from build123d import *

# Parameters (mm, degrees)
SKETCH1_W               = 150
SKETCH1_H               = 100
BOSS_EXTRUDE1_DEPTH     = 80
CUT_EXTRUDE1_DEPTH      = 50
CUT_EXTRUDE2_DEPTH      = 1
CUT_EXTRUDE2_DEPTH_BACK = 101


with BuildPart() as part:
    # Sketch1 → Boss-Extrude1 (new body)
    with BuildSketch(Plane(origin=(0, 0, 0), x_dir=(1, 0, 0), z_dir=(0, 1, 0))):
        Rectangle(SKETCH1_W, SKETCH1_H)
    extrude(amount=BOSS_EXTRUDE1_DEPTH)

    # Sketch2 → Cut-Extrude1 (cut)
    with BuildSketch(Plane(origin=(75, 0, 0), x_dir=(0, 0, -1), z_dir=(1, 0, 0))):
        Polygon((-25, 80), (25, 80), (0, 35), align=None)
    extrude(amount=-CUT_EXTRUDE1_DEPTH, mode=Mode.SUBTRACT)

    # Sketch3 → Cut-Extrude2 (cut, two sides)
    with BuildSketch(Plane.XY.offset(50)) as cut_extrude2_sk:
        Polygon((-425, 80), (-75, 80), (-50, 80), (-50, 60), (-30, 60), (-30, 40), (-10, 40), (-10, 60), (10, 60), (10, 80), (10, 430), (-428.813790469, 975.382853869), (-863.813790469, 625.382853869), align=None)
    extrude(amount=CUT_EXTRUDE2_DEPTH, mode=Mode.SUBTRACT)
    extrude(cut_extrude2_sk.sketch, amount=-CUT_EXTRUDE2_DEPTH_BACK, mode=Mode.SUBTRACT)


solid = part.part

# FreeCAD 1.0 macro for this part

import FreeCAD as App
import Part
import Sketcher
Q = App.Units.Quantity

doc = App.newDocument("Part")
body = doc.addObject("PartDesign::Body", "Body")

# Sketch on XZ plane
sketch1 = doc.addObject("Sketcher::SketchObject", "Sketch")
body.addObject(sketch1)
sketch1.AttachmentSupport = (doc.XZ_Plane, [""])
sketch1.MapMode = "FlatFace"
sketch1.addGeometry(Part.LineSegment(App.Vector(-75, -50, 0), App.Vector(-75, 50, 0)), False)
sketch1.addGeometry(Part.LineSegment(App.Vector(-75, 50, 0), App.Vector(75, 50, 0)), False)
sketch1.addGeometry(Part.LineSegment(App.Vector(75, 50, 0), App.Vector(75, -50, 0)), False)
sketch1.addGeometry(Part.LineSegment(App.Vector(75, -50, 0), App.Vector(-75, -50, 0)), False)
sketch1.addConstraint(Sketcher.Constraint("Coincident", 0, 2, 1, 1))
sketch1.addConstraint(Sketcher.Constraint("Coincident", 1, 2, 2, 1))
sketch1.addConstraint(Sketcher.Constraint("Coincident", 2, 2, 3, 1))
sketch1.addConstraint(Sketcher.Constraint("Coincident", 3, 2, 0, 1))
sketch1.addConstraint(Sketcher.Constraint("Vertical", 0))
sketch1.addConstraint(Sketcher.Constraint("Horizontal", 1))
sketch1.addConstraint(Sketcher.Constraint("Vertical", 2))
sketch1.addConstraint(Sketcher.Constraint("Horizontal", 3))
sketch1.addConstraint(Sketcher.Constraint("Symmetric", 0, 2, 2, 2, -1, 1))
sketch1.addConstraint(Sketcher.Constraint("DistanceX", 1, 1, 1, 2, Q("150 mm")))
sketch1.addConstraint(Sketcher.Constraint("DistanceY", 0, 1, 0, 2, Q("100 mm")))
pad1 = doc.addObject("PartDesign::Pad", "Pad")
body.addObject(pad1)
pad1.Profile = sketch1
pad1.Length = 80
pad1.Reversed = True

# Sketch on YZ plane
sketch2 = doc.addObject("Sketcher::SketchObject", "Sketch001")
body.addObject(sketch2)
sketch2.AttachmentSupport = (doc.YZ_Plane, [""])
sketch2.MapMode = "FlatFace"
sketch2.AttachmentOffset = App.Placement(App.Vector(0, 0, 75), App.Rotation())
sketch2.addGeometry(Part.LineSegment(App.Vector(80, -25, 0), App.Vector(80, 25, 0)), False)
sketch2.addGeometry(Part.LineSegment(App.Vector(80, 25, 0), App.Vector(35, 0, 0)), False)
sketch2.addGeometry(Part.LineSegment(App.Vector(35, 0, 0), App.Vector(80, -25, 0)), False)
sketch2.addConstraint(Sketcher.Constraint("Coincident", 0, 2, 1, 1))
sketch2.addConstraint(Sketcher.Constraint("Coincident", 1, 2, 2, 1))
sketch2.addConstraint(Sketcher.Constraint("Coincident", 2, 2, 0, 1))
sketch2.addConstraint(Sketcher.Constraint("Vertical", 0))
sketch2.addConstraint(Sketcher.Constraint("PointOnObject", 1, 2, -1))
sketch2.addConstraint(Sketcher.Constraint("Equal", 1, 2))
sketch2.addConstraint(Sketcher.Constraint("DistanceY", 0, 1, 0, 2, Q("50 mm")))
sketch2.addConstraint(Sketcher.Constraint("DistanceX", -1, 1, 0, 2, Q("80 mm")))
sketch2.addConstraint(Sketcher.Constraint("DistanceX", -1, 1, 1, 2, Q("35 mm")))
pocket1 = doc.addObject("PartDesign::Pocket", "Pocket")
body.addObject(pocket1)
pocket1.Profile = sketch2
pocket1.Length = 50

# Sketch on XY plane
sketch3 = doc.addObject("Sketcher::SketchObject", "Sketch002")
body.addObject(sketch3)
sketch3.AttachmentSupport = (doc.XY_Plane, [""])
sketch3.MapMode = "FlatFace"
sketch3.AttachmentOffset = App.Placement(App.Vector(0, 0, 50), App.Rotation())
sketch3.addGeometry(Part.LineSegment(App.Vector(-425, 80, 0), App.Vector(-50, 80, 0)), False)
sketch3.addGeometry(Part.LineSegment(App.Vector(-50, 80, 0), App.Vector(-50, 60, 0)), False)
sketch3.addGeometry(Part.LineSegment(App.Vector(-50, 60, 0), App.Vector(-30, 60, 0)), False)
sketch3.addGeometry(Part.LineSegment(App.Vector(-30, 60, 0), App.Vector(-30, 40, 0)), False)
sketch3.addGeometry(Part.LineSegment(App.Vector(-30, 40, 0), App.Vector(-10, 40, 0)), False)
sketch3.addGeometry(Part.LineSegment(App.Vector(-10, 40, 0), App.Vector(-10, 60, 0)), False)
sketch3.addGeometry(Part.LineSegment(App.Vector(-10, 60, 0), App.Vector(10, 60, 0)), False)
sketch3.addGeometry(Part.LineSegment(App.Vector(10, 60, 0), App.Vector(10, 430, 0)), False)
sketch3.addGeometry(Part.LineSegment(App.Vector(10, 430, 0), App.Vector(-428.81379, 975.382854, 0)), False)
sketch3.addGeometry(Part.LineSegment(App.Vector(-428.81379, 975.382854, 0), App.Vector(-863.81379, 625.382854, 0)), False)
sketch3.addGeometry(Part.LineSegment(App.Vector(-863.81379, 625.382854, 0), App.Vector(-425, 80, 0)), False)
sketch3.addConstraint(Sketcher.Constraint("Coincident", 0, 2, 1, 1))
sketch3.addConstraint(Sketcher.Constraint("Coincident", 1, 2, 2, 1))
sketch3.addConstraint(Sketcher.Constraint("Coincident", 2, 2, 3, 1))
sketch3.addConstraint(Sketcher.Constraint("Coincident", 3, 2, 4, 1))
sketch3.addConstraint(Sketcher.Constraint("Coincident", 4, 2, 5, 1))
sketch3.addConstraint(Sketcher.Constraint("Coincident", 5, 2, 6, 1))
sketch3.addConstraint(Sketcher.Constraint("Coincident", 6, 2, 7, 1))
sketch3.addConstraint(Sketcher.Constraint("Coincident", 7, 2, 8, 1))
sketch3.addConstraint(Sketcher.Constraint("Coincident", 8, 2, 9, 1))
sketch3.addConstraint(Sketcher.Constraint("Coincident", 9, 2, 10, 1))
sketch3.addConstraint(Sketcher.Constraint("Coincident", 10, 2, 0, 1))
sketch3.addConstraint(Sketcher.Constraint("Horizontal", 0))
sketch3.addConstraint(Sketcher.Constraint("Vertical", 1))
sketch3.addConstraint(Sketcher.Constraint("Horizontal", 2))
sketch3.addConstraint(Sketcher.Constraint("Vertical", 3))
sketch3.addConstraint(Sketcher.Constraint("Horizontal", 4))
sketch3.addConstraint(Sketcher.Constraint("Vertical", 5))
sketch3.addConstraint(Sketcher.Constraint("Horizontal", 6))
sketch3.addConstraint(Sketcher.Constraint("Vertical", 7))
sketch3.addConstraint(Sketcher.Constraint("Perpendicular", 8, 9))
sketch3.addConstraint(Sketcher.Constraint("Perpendicular", 9, 10))
sketch3.addConstraint(Sketcher.Constraint("Horizontal", 2, 2, 5, 2))
sketch3.addConstraint(Sketcher.Constraint("Equal", 2, 4))
sketch3.addConstraint(Sketcher.Constraint("Equal", 4, 6))
sketch3.addConstraint(Sketcher.Constraint("Equal", 6, 1))
sketch3.addConstraint(Sketcher.Constraint("Equal", 1, 3))
sketch3.addConstraint(Sketcher.Constraint("Equal", 8, 10))
sketch3.addConstraint(Sketcher.Constraint("DistanceX", 0, 1, 0, 2, Q("375 mm")))
sketch3.addConstraint(Sketcher.Constraint("DistanceX", 2, 1, 2, 2, Q("20 mm")))
sketch3.addConstraint(Sketcher.Constraint("DistanceY", 7, 1, 7, 2, Q("370 mm")))
sketch3.addConstraint(Sketcher.Constraint("Distance", 8, Q("700 mm")))
sketch3.addConstraint(Sketcher.Constraint("DistanceX", 0, 2, -1, 1, Q("50 mm")))
sketch3.addConstraint(Sketcher.Constraint("DistanceY", -1, 1, 0, 2, Q("80 mm")))
pocket2 = doc.addObject("PartDesign::Pocket", "Pocket001")
body.addObject(pocket2)
pocket2.Profile = sketch3
pocket2.Type = "ThroughAll"
pocket2.Midplane = True

doc.recompute()
